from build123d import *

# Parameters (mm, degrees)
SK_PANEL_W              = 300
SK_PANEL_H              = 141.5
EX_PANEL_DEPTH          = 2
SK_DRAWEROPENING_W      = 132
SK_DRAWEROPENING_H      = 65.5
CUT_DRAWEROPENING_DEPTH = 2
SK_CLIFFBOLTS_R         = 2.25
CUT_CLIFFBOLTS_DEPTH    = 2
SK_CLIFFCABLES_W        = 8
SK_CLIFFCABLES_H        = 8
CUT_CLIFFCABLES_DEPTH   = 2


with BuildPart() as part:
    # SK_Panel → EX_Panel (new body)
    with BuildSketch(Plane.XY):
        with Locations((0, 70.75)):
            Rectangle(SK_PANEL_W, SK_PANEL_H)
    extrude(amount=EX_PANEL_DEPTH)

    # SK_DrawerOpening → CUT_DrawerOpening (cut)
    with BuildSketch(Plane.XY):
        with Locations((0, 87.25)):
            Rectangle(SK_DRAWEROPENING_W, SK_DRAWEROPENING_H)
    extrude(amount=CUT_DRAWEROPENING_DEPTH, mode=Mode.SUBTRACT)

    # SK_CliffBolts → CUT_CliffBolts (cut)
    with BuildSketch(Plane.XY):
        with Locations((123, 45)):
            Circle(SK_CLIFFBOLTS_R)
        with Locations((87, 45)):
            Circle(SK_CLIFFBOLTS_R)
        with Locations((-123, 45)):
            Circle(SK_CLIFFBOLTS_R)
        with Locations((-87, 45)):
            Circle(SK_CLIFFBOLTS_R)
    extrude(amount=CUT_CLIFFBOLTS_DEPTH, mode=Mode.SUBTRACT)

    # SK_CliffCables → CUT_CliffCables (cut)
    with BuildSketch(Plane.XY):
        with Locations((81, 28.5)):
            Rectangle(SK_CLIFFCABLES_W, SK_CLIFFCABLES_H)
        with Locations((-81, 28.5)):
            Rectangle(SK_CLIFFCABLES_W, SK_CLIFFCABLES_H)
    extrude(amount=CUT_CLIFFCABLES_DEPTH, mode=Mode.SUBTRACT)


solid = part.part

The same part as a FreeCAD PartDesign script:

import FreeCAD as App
import Part
import Sketcher
Q = App.Units.Quantity

doc = App.newDocument("Part")
body = doc.addObject("PartDesign::Body", "Body")

# Sketch on XY plane
sketch1 = body.newObject("Sketcher::SketchObject", "Sketch")
sketch1.AttachmentSupport = (doc.getObject("XY_Plane"), [""])
sketch1.MapMode = "FlatFace"
sketch1.addGeometry([
    Part.LineSegment(App.Vector(-150, 142, 0), App.Vector(-150, 0, 0)),
    Part.LineSegment(App.Vector(-150, 0, 0), App.Vector(150, 0, 0)),
    Part.LineSegment(App.Vector(150, 0, 0), App.Vector(150, 142, 0)),
    Part.LineSegment(App.Vector(150, 142, 0), App.Vector(-150, 142, 0)),
], False)
sketch1.addConstraint([
    Sketcher.Constraint("Coincident", 0, 2, 1, 1),
    Sketcher.Constraint("Coincident", 1, 2, 2, 1),
    Sketcher.Constraint("Coincident", 2, 2, 3, 1),
    Sketcher.Constraint("Coincident", 3, 2, 0, 1),
    Sketcher.Constraint("Vertical", 0),
    Sketcher.Constraint("Horizontal", 1),
    Sketcher.Constraint("Vertical", 2),
    Sketcher.Constraint("Horizontal", 3),
    Sketcher.Constraint("Symmetric", 0, 2, 1, 2, -1, 1),
    Sketcher.Constraint("DistanceX", 1, 1, 1, 2, Q("300 mm")),
    Sketcher.Constraint("DistanceY", 0, 2, 0, 1, Q("141.5 mm")),
])
pad1 = body.newObject("PartDesign::Pad", "Pad")
pad1.Profile = sketch1
pad1.Length = 2

# Sketch on XY plane
sketch2 = body.newObject("Sketcher::SketchObject", "Sketch001")
sketch2.AttachmentSupport = (doc.getObject("XY_Plane"), [""])
sketch2.MapMode = "FlatFace"
sketch2.addGeometry([
    Part.LineSegment(App.Vector(-66, 120, 0), App.Vector(-66, 54, 0)),
    Part.LineSegment(App.Vector(-66, 54, 0), App.Vector(66, 54, 0)),
    Part.LineSegment(App.Vector(66, 54, 0), App.Vector(66, 120, 0)),
    Part.LineSegment(App.Vector(66, 120, 0), App.Vector(-66, 120, 0)),
], False)
sketch2.addConstraint([
    Sketcher.Constraint("Coincident", 0, 2, 1, 1),
    Sketcher.Constraint("Coincident", 1, 2, 2, 1),
    Sketcher.Constraint("Coincident", 2, 2, 3, 1),
    Sketcher.Constraint("Coincident", 3, 2, 0, 1),
    Sketcher.Constraint("Vertical", 0),
    Sketcher.Constraint("Horizontal", 1),
    Sketcher.Constraint("Vertical", 2),
    Sketcher.Constraint("Horizontal", 3),
    Sketcher.Constraint("DistanceX", 1, 1, 1, 2, Q("132 mm")),
    Sketcher.Constraint("DistanceY", 0, 2, 0, 1, Q("65.5 mm")),
    Sketcher.Constraint("DistanceX", 0, 2, -1, 1, Q("66 mm")),
    Sketcher.Constraint("DistanceY", -1, 1, 2, 2, Q("120 mm")),
])
pocket1 = body.newObject("PartDesign::Pocket", "Pocket")
pocket1.Profile = sketch2
pocket1.Length = 2
pocket1.Reversed = True

# Sketch on XY plane
sketch3 = body.newObject("Sketcher::SketchObject", "Sketch002")
sketch3.AttachmentSupport = (doc.getObject("XY_Plane"), [""])
sketch3.MapMode = "FlatFace"
sketch3.addGeometry([
    Part.Circle(App.Vector(123, 45, 0), App.Vector(0, 0, 1), 2.2),
    Part.Circle(App.Vector(87, 45, 0), App.Vector(0, 0, 1), 2.2),
    Part.Circle(App.Vector(-123, 45, 0), App.Vector(0, 0, 1), 2.2),
    Part.Circle(App.Vector(-87, 45, 0), App.Vector(0, 0, 1), 2.2),
], False)
sketch3.addConstraint([
    Sketcher.Constraint("Equal", 0, 1),
    Sketcher.Constraint("Equal", 1, 2),
    Sketcher.Constraint("Equal", 2, 3),
    Sketcher.Constraint("Symmetric", 0, 3, 2, 3, -2),
    Sketcher.Constraint("Symmetric", 1, 3, 3, 3, -2),
    Sketcher.Constraint("Horizontal", 0, 3, 1, 3),
    Sketcher.Constraint("Diameter", 0, Q("4.5 mm")),
    Sketcher.Constraint("DistanceX", -1, 1, 0, 3, Q("123 mm")),
    Sketcher.Constraint("DistanceY", -1, 1, 0, 3, Q("45 mm")),
    Sketcher.Constraint("DistanceX", -1, 1, 1, 3, Q("87 mm")),
])
pocket2 = body.newObject("PartDesign::Pocket", "Pocket001")
pocket2.Profile = sketch3
pocket2.Length = 2
pocket2.Reversed = True

# Sketch on XY plane
sketch4 = body.newObject("Sketcher::SketchObject", "Sketch003")
sketch4.AttachmentSupport = (doc.getObject("XY_Plane"), [""])
sketch4.MapMode = "FlatFace"
sketch4.addGeometry([
    Part.LineSegment(App.Vector(77, 32, 0), App.Vector(77, 24, 0)),  # 0
    Part.LineSegment(App.Vector(77, 24, 0), App.Vector(85, 24, 0)),  # 1
    Part.LineSegment(App.Vector(85, 24, 0), App.Vector(85, 32, 0)),  # 2
    Part.LineSegment(App.Vector(85, 32, 0), App.Vector(77, 32, 0)),  # 3
    Part.LineSegment(App.Vector(-85, 32, 0), App.Vector(-85, 24, 0)),  # 4
    Part.LineSegment(App.Vector(-85, 24, 0), App.Vector(-77, 24, 0)),  # 5
    Part.LineSegment(App.Vector(-77, 24, 0), App.Vector(-77, 32, 0)),  # 6
    Part.LineSegment(App.Vector(-77, 32, 0), App.Vector(-85, 32, 0)),  # 7
], False)
sketch4.addConstraint([
    Sketcher.Constraint("Coincident", 0, 2, 1, 1),
    Sketcher.Constraint("Coincident", 1, 2, 2, 1),
    Sketcher.Constraint("Coincident", 2, 2, 3, 1),
    Sketcher.Constraint("Coincident", 3, 2, 0, 1),
    Sketcher.Constraint("Coincident", 4, 2, 5, 1),
    Sketcher.Constraint("Coincident", 5, 2, 6, 1),
    Sketcher.Constraint("Coincident", 6, 2, 7, 1),
    Sketcher.Constraint("Coincident", 7, 2, 4, 1),
    Sketcher.Constraint("Vertical", 0),
    Sketcher.Constraint("Horizontal", 1),
    Sketcher.Constraint("Vertical", 2),
    Sketcher.Constraint("Horizontal", 3),
    Sketcher.Constraint("Vertical", 4),
    Sketcher.Constraint("Horizontal", 5),
    Sketcher.Constraint("Vertical", 6),
    Sketcher.Constraint("Horizontal", 7),
    Sketcher.Constraint("Symmetric", 1, 2, 4, 2, -2),
    Sketcher.Constraint("Symmetric", 3, 2, 6, 2, -2),
    Sketcher.Constraint("Equal", 7, 0),
    Sketcher.Constraint("DistanceX", 1, 1, 1, 2, Q("8 mm")),
    Sketcher.Constraint("DistanceX", -1, 1, 0, 2, Q("77 mm")),
    Sketcher.Constraint("DistanceY", -1, 1, 0, 2, Q("24.5 mm")),
])
pocket3 = body.newObject("PartDesign::Pocket", "Pocket002")
pocket3.Profile = sketch4
pocket3.Length = 2
pocket3.Reversed = True

doc.recompute()
